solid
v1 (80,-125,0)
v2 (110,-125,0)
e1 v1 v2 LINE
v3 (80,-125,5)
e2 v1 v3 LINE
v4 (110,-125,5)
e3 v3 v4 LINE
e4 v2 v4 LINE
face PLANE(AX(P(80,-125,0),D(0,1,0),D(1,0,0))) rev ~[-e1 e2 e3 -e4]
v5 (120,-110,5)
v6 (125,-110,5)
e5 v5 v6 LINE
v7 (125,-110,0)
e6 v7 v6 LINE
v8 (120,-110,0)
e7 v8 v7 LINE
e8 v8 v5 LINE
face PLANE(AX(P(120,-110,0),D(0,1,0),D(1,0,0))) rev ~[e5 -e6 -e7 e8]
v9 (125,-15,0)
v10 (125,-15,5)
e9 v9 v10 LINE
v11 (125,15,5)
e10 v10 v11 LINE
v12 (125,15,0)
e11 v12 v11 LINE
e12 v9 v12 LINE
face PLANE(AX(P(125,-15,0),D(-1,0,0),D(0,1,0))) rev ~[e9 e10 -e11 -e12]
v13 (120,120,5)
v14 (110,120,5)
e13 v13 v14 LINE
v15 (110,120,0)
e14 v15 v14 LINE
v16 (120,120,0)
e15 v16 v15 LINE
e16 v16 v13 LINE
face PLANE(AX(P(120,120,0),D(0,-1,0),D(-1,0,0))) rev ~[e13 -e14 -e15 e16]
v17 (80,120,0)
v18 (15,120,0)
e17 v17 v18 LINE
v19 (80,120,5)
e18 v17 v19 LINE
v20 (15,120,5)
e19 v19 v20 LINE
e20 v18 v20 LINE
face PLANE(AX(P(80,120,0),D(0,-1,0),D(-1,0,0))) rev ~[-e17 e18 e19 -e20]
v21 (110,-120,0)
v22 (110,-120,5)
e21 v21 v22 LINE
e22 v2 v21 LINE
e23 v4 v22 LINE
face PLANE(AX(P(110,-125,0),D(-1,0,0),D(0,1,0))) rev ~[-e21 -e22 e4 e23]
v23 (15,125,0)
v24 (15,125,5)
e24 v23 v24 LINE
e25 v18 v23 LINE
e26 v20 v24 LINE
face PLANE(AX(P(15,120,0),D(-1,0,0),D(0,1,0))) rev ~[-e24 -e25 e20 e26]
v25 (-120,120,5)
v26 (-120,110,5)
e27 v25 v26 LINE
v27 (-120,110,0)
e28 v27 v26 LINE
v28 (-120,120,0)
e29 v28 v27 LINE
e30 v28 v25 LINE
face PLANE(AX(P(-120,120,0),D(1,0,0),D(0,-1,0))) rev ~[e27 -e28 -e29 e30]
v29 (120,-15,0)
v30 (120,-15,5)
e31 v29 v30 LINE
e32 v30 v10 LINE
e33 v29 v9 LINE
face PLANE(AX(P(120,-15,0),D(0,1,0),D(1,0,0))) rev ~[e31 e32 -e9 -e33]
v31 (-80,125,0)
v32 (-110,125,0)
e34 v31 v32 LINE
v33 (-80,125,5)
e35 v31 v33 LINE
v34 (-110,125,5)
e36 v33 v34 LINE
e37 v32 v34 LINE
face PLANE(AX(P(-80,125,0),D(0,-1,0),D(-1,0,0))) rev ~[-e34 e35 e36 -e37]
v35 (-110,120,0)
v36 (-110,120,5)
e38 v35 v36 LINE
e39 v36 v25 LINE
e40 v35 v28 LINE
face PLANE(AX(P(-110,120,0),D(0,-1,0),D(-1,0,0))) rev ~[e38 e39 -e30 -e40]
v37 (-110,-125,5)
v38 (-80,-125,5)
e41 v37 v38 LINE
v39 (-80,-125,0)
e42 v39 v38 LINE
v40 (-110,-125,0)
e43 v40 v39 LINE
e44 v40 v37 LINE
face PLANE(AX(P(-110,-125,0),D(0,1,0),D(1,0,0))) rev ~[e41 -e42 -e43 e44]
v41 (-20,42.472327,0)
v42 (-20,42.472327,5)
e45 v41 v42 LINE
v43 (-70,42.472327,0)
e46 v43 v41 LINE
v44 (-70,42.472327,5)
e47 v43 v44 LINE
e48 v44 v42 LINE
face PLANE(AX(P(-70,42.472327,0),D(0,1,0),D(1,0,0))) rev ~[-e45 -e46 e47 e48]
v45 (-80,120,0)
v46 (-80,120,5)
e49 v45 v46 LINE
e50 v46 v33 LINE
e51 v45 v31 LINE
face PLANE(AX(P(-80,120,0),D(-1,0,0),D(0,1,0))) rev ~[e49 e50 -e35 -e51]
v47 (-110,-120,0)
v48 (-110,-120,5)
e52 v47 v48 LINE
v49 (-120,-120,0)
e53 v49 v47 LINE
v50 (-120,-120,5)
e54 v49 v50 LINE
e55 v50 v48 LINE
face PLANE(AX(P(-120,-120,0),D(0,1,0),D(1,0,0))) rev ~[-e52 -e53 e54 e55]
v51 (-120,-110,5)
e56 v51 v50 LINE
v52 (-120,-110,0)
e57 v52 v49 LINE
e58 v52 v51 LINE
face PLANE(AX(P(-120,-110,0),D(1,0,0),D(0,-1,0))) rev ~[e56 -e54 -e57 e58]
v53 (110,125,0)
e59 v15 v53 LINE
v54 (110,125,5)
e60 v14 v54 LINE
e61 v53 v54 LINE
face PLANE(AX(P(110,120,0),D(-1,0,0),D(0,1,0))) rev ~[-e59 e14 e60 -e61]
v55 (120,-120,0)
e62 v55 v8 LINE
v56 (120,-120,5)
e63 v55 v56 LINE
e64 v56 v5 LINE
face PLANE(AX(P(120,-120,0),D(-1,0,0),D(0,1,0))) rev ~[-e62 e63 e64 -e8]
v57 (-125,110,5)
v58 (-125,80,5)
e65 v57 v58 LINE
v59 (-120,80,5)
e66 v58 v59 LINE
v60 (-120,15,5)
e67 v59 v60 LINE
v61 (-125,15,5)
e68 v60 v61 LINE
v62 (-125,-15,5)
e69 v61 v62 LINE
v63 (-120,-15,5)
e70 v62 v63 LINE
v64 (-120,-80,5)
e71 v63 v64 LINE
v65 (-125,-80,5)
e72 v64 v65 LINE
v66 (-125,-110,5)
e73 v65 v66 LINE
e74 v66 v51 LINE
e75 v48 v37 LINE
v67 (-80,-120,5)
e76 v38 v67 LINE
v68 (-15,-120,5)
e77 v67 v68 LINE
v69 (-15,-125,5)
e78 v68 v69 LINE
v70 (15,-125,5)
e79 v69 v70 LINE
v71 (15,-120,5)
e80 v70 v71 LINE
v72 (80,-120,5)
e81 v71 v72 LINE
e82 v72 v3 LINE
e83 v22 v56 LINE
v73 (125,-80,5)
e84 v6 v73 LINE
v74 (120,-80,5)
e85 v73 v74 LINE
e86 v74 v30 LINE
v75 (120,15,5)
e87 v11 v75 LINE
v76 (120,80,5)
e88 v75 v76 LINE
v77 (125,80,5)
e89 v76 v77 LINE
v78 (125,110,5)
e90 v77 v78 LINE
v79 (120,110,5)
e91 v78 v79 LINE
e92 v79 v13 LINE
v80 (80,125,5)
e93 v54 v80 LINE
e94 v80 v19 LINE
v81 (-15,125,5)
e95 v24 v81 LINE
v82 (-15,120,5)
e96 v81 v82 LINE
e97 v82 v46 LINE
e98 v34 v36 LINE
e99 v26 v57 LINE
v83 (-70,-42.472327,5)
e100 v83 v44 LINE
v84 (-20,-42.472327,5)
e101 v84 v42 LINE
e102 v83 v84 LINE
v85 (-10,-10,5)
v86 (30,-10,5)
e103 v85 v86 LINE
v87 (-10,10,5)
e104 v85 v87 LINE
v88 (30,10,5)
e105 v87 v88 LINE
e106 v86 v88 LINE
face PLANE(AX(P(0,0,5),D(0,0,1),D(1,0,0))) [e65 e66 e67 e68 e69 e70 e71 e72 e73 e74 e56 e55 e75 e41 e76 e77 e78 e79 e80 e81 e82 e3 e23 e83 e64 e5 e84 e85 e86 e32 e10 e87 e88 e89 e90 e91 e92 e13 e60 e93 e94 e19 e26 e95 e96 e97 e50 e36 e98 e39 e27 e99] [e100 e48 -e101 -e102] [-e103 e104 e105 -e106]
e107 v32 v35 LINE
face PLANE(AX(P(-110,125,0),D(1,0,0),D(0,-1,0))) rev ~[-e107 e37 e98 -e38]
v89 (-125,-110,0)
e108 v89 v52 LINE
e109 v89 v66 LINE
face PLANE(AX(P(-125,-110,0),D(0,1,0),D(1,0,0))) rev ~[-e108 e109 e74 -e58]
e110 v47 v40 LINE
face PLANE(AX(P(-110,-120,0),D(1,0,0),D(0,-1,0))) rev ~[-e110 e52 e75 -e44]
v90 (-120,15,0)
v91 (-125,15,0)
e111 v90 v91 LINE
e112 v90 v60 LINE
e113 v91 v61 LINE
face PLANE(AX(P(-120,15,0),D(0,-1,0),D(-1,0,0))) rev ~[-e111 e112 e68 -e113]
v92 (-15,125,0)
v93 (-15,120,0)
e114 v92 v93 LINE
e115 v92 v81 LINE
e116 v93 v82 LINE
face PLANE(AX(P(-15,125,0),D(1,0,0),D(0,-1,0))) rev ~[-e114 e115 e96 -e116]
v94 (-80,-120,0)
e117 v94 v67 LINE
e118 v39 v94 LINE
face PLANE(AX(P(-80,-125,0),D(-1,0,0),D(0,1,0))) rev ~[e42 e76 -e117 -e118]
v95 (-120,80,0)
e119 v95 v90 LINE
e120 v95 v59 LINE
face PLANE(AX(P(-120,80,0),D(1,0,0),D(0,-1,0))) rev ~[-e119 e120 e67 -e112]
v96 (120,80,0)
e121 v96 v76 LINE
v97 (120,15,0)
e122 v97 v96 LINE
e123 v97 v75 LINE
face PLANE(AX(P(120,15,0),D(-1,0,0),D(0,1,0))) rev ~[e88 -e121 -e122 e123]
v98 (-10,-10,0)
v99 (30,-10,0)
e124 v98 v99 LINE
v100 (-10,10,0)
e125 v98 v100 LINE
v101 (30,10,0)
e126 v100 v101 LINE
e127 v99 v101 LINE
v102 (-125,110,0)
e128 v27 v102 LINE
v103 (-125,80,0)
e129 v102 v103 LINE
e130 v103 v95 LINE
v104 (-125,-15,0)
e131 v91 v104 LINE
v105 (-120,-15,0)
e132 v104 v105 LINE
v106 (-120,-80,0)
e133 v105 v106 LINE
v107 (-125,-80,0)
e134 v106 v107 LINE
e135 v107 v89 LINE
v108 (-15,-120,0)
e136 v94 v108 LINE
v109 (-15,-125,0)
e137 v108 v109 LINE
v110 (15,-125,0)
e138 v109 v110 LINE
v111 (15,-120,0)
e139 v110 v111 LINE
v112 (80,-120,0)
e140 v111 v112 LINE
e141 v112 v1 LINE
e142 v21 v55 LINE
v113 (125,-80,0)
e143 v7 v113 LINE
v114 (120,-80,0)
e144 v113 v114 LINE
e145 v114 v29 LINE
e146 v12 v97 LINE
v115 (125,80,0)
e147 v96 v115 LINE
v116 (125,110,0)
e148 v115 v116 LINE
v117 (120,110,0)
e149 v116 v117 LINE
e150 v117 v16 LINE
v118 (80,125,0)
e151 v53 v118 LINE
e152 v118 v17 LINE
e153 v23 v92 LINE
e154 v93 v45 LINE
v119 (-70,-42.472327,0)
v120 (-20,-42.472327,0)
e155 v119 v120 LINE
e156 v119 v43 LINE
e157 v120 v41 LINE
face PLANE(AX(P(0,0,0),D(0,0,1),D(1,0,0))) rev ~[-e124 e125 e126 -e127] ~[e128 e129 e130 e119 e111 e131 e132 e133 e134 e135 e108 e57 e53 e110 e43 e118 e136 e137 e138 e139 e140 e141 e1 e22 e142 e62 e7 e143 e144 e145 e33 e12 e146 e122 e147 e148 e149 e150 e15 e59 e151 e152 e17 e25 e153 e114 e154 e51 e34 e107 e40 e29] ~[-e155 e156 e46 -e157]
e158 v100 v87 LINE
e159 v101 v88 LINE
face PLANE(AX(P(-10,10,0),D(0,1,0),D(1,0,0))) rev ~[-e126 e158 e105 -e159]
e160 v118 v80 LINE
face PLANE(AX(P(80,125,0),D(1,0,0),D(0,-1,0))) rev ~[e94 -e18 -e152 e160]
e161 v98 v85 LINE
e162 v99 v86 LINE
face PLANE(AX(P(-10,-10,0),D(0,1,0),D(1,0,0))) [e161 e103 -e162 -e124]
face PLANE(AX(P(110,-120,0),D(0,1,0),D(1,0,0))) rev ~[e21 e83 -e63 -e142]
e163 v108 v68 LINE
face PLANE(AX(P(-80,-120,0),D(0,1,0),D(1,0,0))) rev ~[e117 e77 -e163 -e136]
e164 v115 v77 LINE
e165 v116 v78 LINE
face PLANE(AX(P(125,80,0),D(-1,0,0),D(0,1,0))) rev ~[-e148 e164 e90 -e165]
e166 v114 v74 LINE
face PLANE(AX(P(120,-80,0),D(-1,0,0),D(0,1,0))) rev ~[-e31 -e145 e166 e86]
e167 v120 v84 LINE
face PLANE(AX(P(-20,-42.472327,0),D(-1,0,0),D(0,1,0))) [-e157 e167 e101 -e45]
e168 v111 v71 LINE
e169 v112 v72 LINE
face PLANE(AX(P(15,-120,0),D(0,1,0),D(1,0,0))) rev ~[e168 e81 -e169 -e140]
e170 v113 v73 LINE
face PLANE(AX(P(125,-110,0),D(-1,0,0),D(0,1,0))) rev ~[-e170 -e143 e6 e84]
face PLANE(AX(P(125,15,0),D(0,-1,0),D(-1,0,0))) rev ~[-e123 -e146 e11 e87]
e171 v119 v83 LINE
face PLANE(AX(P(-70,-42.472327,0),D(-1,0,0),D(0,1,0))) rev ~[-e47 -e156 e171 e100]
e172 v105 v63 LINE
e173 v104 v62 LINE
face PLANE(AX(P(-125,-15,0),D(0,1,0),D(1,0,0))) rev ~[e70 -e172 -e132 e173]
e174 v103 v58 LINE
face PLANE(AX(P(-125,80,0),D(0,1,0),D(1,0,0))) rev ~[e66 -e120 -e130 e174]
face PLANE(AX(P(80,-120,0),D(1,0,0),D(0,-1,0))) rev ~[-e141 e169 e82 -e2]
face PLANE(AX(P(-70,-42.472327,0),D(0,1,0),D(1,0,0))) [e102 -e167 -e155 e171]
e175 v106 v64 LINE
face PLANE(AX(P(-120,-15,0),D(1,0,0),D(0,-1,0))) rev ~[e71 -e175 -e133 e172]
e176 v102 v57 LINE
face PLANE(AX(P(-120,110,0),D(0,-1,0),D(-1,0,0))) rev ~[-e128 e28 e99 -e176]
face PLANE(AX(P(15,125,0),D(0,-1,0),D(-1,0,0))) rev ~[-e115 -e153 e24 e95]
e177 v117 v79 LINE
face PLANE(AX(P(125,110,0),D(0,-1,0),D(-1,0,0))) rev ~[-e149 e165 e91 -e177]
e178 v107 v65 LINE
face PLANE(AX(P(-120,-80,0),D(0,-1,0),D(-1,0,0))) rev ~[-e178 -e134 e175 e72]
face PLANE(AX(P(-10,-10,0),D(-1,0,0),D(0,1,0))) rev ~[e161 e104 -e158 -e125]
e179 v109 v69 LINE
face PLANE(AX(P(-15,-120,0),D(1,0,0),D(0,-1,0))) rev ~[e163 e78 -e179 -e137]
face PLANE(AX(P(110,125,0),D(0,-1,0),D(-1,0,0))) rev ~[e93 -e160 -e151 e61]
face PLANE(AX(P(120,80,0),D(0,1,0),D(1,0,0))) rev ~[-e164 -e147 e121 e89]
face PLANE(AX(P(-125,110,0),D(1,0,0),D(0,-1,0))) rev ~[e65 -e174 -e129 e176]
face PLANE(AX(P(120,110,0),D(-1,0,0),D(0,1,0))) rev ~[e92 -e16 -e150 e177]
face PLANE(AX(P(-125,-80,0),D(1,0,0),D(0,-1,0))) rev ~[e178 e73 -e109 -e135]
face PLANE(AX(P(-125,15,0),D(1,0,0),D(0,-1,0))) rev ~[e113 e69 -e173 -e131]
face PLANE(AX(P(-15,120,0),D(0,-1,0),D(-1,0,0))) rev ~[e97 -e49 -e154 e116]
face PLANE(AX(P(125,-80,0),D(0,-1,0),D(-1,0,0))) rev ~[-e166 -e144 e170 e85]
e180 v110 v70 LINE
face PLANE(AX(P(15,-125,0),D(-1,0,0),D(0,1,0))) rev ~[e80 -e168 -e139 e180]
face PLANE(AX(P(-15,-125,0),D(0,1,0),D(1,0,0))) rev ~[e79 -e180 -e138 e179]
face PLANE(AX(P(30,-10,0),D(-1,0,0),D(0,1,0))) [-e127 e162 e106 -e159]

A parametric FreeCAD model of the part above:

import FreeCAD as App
import Part
import Sketcher

V = App.Vector


def add_polygon(sketch, points):
    """Adds a closed chain of lines whose ends are joined by coincident constraints."""
    first, n = sketch.GeometryCount, len(points)
    for a, b in zip(points, points[1:] + points[:1]):
        sketch.addGeometry(Part.LineSegment(App.Vector(*a, 0), App.Vector(*b, 0)), False)
    for i in range(n):
        sketch.addConstraint(Sketcher.Constraint("Coincident", first + i, 2, first + (i + 1) % n, 1))

doc = App.newDocument("Part")
params = doc.addObject("Spreadsheet::Sheet", "Params")
for row, (alias, value) in enumerate([
    ("sketch1_width", "10 mm"),
    ("sketch1_width2", "5 mm"),
    ("sketch1_width3", "30 mm"),
    ("sketch1_width4", "65 mm"),
    ("sketch1_width5", "50 mm"),
    ("pad1_length", "5 mm"),
], start=1):
    params.set(f"A{row}", alias)
    params.set(f"B{row}", "=" + value)
    params.setAlias(f"B{row}", alias)

body = doc.addObject("PartDesign::Body", "Body")

# Sketch on XY plane
sketch1 = doc.addObject("Sketcher::SketchObject", "Sketch")
body.addObject(sketch1)
sketch1.AttachmentSupport = (doc.XY_Plane, [""])
sketch1.MapMode = "FlatFace"
add_polygon(sketch1, [(-110, 120), (-120, 120), (-120, 110), (-125, 110), (-125, 80), (-120, 80), (-120, 15), (-125, 15), (-125, -15), (-120, -15), (-120, -80), (-125, -80), (-125, -110), (-120, -110), (-120, -120), (-110, -120), (-110, -125), (-80, -125), (-80, -120), (-15, -120), (-15, -125), (15, -125), (15, -120), (80, -120), (80, -125), (110, -125), (110, -120), (120, -120), (120, -110), (125, -110), (125, -80), (120, -80), (120, -15), (125, -15), (125, 15), (120, 15), (120, 80), (125, 80), (125, 110), (120, 110), (120, 120), (110, 120), (110, 125), (80, 125), (80, 120), (15, 120), (15, 125), (-15, 125), (-15, 120), (-80, 120), (-80, 125), (-110, 125)])  # lines 0-51
add_polygon(sketch1, [(-20, -42), (-70, -42), (-70, 42), (-20, 42)])  # lines 52-55
add_polygon(sketch1, [(30, -10), (-10, -10), (-10, 10), (30, 10)])  # lines 56-59
sketch1.addConstraint([
    Sketcher.Constraint("Horizontal", 0),
    Sketcher.Constraint("Vertical", 1),
    Sketcher.Constraint("Horizontal", 2),
    Sketcher.Constraint("Vertical", 3),
    Sketcher.Constraint("Horizontal", 4),
    Sketcher.Constraint("Vertical", 5),
    Sketcher.Constraint("Horizontal", 6),
    Sketcher.Constraint("Vertical", 7),
    Sketcher.Constraint("Horizontal", 8),
    Sketcher.Constraint("Vertical", 9),
    Sketcher.Constraint("Horizontal", 10),
    Sketcher.Constraint("Vertical", 11),
    Sketcher.Constraint("Horizontal", 12),
    Sketcher.Constraint("Vertical", 13),
    Sketcher.Constraint("Horizontal", 14),
    Sketcher.Constraint("Vertical", 15),
    Sketcher.Constraint("Horizontal", 16),
    Sketcher.Constraint("Vertical", 17),
    Sketcher.Constraint("Horizontal", 18),
    Sketcher.Constraint("Vertical", 19),
    Sketcher.Constraint("Horizontal", 20),
    Sketcher.Constraint("Vertical", 21),
    Sketcher.Constraint("Horizontal", 22),
    Sketcher.Constraint("Vertical", 23),
    Sketcher.Constraint("Horizontal", 24),
    Sketcher.Constraint("Vertical", 25),
    Sketcher.Constraint("Horizontal", 26),
    Sketcher.Constraint("Vertical", 27),
    Sketcher.Constraint("Horizontal", 28),
    Sketcher.Constraint("Vertical", 29),
    Sketcher.Constraint("Horizontal", 30),
    Sketcher.Constraint("Vertical", 31),
    Sketcher.Constraint("Horizontal", 32),
    Sketcher.Constraint("Vertical", 33),
    Sketcher.Constraint("Horizontal", 34),
    Sketcher.Constraint("Vertical", 35),
    Sketcher.Constraint("Horizontal", 36),
    Sketcher.Constraint("Vertical", 37),
    Sketcher.Constraint("Horizontal", 38),
    Sketcher.Constraint("Vertical", 39),
    Sketcher.Constraint("Horizontal", 40),
    Sketcher.Constraint("Vertical", 41),
    Sketcher.Constraint("Horizontal", 42),
    Sketcher.Constraint("Vertical", 43),
    Sketcher.Constraint("Horizontal", 44),
    Sketcher.Constraint("Vertical", 45),
    Sketcher.Constraint("Horizontal", 46),
    Sketcher.Constraint("Vertical", 47),
    Sketcher.Constraint("Horizontal", 48),
    Sketcher.Constraint("Vertical", 49),
    Sketcher.Constraint("Horizontal", 50),
    Sketcher.Constraint("Vertical", 51),
    Sketcher.Constraint("Horizontal", 52),
    Sketcher.Constraint("Vertical", 53),
    Sketcher.Constraint("Horizontal", 54),
    Sketcher.Constraint("Vertical", 55),
    Sketcher.Constraint("Horizontal", 56),
    Sketcher.Constraint("Vertical", 57),
    Sketcher.Constraint("Horizontal", 58),
    Sketcher.Constraint("Vertical", 59),
    Sketcher.Constraint("Symmetric", 0, 2, 26, 2, -1, 1),
    Sketcher.Constraint("Symmetric", 2, 2, 28, 2, -1, 1),
    Sketcher.Constraint("Symmetric", 4, 2, 30, 2, -1, 1),
    Sketcher.Constraint("Symmetric", 6, 2, 32, 2, -1, 1),
    Sketcher.Constraint("Symmetric", 8, 2, 34, 2, -1, 1),
    Sketcher.Constraint("Symmetric", 10, 2, 36, 2, -1, 1),
    Sketcher.Constraint("Symmetric", 12, 2, 38, 2, -1, 1),
    Sketcher.Constraint("Symmetric", 14, 2, 40, 2, -1, 1),
    Sketcher.Constraint("Symmetric", 16, 2, 42, 2, -1, 1),
    Sketcher.Constraint("Symmetric", 18, 2, 44, 2, -1, 1),
    Sketcher.Constraint("Symmetric", 20, 2, 46, 2, -1, 1),
    Sketcher.Constraint("Symmetric", 22, 2, 48, 2, -1, 1),
    Sketcher.Constraint("Symmetric", 24, 2, 50, 2, -1, 1),
    Sketcher.Constraint("Symmetric", 18, 2, 21, 2, -2),
    Sketcher.Constraint("Symmetric", 16, 2, 23, 2, -2),
    Sketcher.Constraint("Symmetric", 14, 2, 25, 2, -2),
    Sketcher.Constraint("Symmetric", 12, 2, 27, 2, -2),
    Sketcher.Constraint("Symmetric", 10, 2, 29, 2, -2),
    Sketcher.Constraint("Symmetric", 8, 2, 31, 2, -2),
    Sketcher.Constraint("Horizontal", 14, 2, 17, 2),
    Sketcher.Constraint("Horizontal", 16, 2, 19, 2),
    Sketcher.Constraint("Vertical", 1, 2, 4, 2),
    Sketcher.Constraint("Vertical", 3, 2, 6, 2),
    Sketcher.Constraint("Equal", 16, 20),
    Sketcher.Constraint("Equal", 40, 1),
    Sketcher.Constraint("Equal", 50, 3),
    Sketcher.Constraint("Equal", 48, 5),
    Sketcher.Constraint("Equal", 3, 7),
    Sketcher.Constraint("Equal", 38, 15),
    Sketcher.Constraint("DistanceX", 0, 2, 0, 1, 10.0),
    Sketcher.Constraint("DistanceX", 2, 2, 2, 1, 5.0),
    Sketcher.Constraint("DistanceX", 16, 1, 16, 2, 30.0),
    Sketcher.Constraint("DistanceX", 18, 1, 18, 2, 65.0),
    Sketcher.Constraint("DistanceX", 52, 2, 52, 1, 50.0),
    Sketcher.Constraint("DistanceX", 56, 2, 56, 1, 40.0),
    Sketcher.Constraint("DistanceY", 57, 1, 57, 2, 20.0),
    Sketcher.Constraint("DistanceX", 52, 2, -1, 1, 70.0),
    Sketcher.Constraint("DistanceX", 56, 2, -1, 1, 10.0),
    Sketcher.Constraint("DistanceY", 56, 2, -1, 1, 10.0),
    Sketcher.Constraint("DistanceY", 53, 1, 53, 2, 84.944653),
    Sketcher.Constraint("DistanceY", 52, 2, -1, 1, 42.472327),
])
sketch1.setExpression("Constraints[149]", "Params.sketch1_width")
sketch1.setExpression("Constraints[150]", "Params.sketch1_width2")
sketch1.setExpression("Constraints[151]", "Params.sketch1_width3")
sketch1.setExpression("Constraints[152]", "Params.sketch1_width4")
sketch1.setExpression("Constraints[153]", "Params.sketch1_width5")
pad1 = doc.addObject("PartDesign::Pad", "Pad")
body.addObject(pad1)
pad1.Profile = sketch1
pad1.setExpression("Length", "Params.pad1_length")

doc.recompute()
